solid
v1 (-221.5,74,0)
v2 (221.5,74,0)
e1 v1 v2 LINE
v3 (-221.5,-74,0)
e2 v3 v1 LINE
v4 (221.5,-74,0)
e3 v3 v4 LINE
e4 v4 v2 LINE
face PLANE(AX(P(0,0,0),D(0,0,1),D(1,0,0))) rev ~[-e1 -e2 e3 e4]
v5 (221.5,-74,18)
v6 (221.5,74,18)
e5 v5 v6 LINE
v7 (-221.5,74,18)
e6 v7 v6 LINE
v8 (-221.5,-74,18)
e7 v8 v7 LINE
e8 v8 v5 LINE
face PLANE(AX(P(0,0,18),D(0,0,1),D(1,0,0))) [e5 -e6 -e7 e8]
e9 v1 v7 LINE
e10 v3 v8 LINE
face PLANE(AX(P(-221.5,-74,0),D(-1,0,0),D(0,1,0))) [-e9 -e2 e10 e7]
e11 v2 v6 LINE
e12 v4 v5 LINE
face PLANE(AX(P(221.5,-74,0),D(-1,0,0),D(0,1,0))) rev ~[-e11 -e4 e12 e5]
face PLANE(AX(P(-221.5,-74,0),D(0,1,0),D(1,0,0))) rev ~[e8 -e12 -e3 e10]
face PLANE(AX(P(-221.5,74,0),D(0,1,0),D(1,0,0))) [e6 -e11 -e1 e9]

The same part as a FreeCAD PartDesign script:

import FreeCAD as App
import Part
import Sketcher

doc = App.newDocument("Part")
body = doc.addObject("PartDesign::Body", "Body")

# Sketch on XY plane
sketch1 = body.newObject("Sketcher::SketchObject", "Sketch")
sketch1.AttachmentSupport = (doc.getObject("XY_Plane"), [""])
sketch1.MapMode = "FlatFace"
sketch1.addGeometry(Part.LineSegment(App.Vector(-221.5, 74, 0), App.Vector(-221.5, -74, 0)), False)
sketch1.addGeometry(Part.LineSegment(App.Vector(-221.5, -74, 0), App.Vector(221.5, -74, 0)), False)
sketch1.addGeometry(Part.LineSegment(App.Vector(221.5, -74, 0), App.Vector(221.5, 74, 0)), False)
sketch1.addGeometry(Part.LineSegment(App.Vector(221.5, 74, 0), App.Vector(-221.5, 74, 0)), False)
sketch1.addConstraint(Sketcher.Constraint("Coincident", 0, 2, 1, 1))
sketch1.addConstraint(Sketcher.Constraint("Coincident", 1, 2, 2, 1))
sketch1.addConstraint(Sketcher.Constraint("Coincident", 2, 2, 3, 1))
sketch1.addConstraint(Sketcher.Constraint("Coincident", 3, 2, 0, 1))
sketch1.addConstraint(Sketcher.Constraint("Vertical", 0))
sketch1.addConstraint(Sketcher.Constraint("Horizontal", 1))
sketch1.addConstraint(Sketcher.Constraint("Vertical", 2))
sketch1.addConstraint(Sketcher.Constraint("Horizontal", 3))
sketch1.addConstraint(Sketcher.Constraint("Symmetric", 0, 2, 2, 2, -1, 1))
sketch1.addConstraint(Sketcher.Constraint("DistanceX", 1, 1, 1, 2, 443.0))
sketch1.addConstraint(Sketcher.Constraint("DistanceY", 0, 2, 0, 1, 148.0))
pad1 = body.newObject("PartDesign::Pad", "Pad")
pad1.Profile = sketch1
pad1.Length = 18

doc.recompute()
